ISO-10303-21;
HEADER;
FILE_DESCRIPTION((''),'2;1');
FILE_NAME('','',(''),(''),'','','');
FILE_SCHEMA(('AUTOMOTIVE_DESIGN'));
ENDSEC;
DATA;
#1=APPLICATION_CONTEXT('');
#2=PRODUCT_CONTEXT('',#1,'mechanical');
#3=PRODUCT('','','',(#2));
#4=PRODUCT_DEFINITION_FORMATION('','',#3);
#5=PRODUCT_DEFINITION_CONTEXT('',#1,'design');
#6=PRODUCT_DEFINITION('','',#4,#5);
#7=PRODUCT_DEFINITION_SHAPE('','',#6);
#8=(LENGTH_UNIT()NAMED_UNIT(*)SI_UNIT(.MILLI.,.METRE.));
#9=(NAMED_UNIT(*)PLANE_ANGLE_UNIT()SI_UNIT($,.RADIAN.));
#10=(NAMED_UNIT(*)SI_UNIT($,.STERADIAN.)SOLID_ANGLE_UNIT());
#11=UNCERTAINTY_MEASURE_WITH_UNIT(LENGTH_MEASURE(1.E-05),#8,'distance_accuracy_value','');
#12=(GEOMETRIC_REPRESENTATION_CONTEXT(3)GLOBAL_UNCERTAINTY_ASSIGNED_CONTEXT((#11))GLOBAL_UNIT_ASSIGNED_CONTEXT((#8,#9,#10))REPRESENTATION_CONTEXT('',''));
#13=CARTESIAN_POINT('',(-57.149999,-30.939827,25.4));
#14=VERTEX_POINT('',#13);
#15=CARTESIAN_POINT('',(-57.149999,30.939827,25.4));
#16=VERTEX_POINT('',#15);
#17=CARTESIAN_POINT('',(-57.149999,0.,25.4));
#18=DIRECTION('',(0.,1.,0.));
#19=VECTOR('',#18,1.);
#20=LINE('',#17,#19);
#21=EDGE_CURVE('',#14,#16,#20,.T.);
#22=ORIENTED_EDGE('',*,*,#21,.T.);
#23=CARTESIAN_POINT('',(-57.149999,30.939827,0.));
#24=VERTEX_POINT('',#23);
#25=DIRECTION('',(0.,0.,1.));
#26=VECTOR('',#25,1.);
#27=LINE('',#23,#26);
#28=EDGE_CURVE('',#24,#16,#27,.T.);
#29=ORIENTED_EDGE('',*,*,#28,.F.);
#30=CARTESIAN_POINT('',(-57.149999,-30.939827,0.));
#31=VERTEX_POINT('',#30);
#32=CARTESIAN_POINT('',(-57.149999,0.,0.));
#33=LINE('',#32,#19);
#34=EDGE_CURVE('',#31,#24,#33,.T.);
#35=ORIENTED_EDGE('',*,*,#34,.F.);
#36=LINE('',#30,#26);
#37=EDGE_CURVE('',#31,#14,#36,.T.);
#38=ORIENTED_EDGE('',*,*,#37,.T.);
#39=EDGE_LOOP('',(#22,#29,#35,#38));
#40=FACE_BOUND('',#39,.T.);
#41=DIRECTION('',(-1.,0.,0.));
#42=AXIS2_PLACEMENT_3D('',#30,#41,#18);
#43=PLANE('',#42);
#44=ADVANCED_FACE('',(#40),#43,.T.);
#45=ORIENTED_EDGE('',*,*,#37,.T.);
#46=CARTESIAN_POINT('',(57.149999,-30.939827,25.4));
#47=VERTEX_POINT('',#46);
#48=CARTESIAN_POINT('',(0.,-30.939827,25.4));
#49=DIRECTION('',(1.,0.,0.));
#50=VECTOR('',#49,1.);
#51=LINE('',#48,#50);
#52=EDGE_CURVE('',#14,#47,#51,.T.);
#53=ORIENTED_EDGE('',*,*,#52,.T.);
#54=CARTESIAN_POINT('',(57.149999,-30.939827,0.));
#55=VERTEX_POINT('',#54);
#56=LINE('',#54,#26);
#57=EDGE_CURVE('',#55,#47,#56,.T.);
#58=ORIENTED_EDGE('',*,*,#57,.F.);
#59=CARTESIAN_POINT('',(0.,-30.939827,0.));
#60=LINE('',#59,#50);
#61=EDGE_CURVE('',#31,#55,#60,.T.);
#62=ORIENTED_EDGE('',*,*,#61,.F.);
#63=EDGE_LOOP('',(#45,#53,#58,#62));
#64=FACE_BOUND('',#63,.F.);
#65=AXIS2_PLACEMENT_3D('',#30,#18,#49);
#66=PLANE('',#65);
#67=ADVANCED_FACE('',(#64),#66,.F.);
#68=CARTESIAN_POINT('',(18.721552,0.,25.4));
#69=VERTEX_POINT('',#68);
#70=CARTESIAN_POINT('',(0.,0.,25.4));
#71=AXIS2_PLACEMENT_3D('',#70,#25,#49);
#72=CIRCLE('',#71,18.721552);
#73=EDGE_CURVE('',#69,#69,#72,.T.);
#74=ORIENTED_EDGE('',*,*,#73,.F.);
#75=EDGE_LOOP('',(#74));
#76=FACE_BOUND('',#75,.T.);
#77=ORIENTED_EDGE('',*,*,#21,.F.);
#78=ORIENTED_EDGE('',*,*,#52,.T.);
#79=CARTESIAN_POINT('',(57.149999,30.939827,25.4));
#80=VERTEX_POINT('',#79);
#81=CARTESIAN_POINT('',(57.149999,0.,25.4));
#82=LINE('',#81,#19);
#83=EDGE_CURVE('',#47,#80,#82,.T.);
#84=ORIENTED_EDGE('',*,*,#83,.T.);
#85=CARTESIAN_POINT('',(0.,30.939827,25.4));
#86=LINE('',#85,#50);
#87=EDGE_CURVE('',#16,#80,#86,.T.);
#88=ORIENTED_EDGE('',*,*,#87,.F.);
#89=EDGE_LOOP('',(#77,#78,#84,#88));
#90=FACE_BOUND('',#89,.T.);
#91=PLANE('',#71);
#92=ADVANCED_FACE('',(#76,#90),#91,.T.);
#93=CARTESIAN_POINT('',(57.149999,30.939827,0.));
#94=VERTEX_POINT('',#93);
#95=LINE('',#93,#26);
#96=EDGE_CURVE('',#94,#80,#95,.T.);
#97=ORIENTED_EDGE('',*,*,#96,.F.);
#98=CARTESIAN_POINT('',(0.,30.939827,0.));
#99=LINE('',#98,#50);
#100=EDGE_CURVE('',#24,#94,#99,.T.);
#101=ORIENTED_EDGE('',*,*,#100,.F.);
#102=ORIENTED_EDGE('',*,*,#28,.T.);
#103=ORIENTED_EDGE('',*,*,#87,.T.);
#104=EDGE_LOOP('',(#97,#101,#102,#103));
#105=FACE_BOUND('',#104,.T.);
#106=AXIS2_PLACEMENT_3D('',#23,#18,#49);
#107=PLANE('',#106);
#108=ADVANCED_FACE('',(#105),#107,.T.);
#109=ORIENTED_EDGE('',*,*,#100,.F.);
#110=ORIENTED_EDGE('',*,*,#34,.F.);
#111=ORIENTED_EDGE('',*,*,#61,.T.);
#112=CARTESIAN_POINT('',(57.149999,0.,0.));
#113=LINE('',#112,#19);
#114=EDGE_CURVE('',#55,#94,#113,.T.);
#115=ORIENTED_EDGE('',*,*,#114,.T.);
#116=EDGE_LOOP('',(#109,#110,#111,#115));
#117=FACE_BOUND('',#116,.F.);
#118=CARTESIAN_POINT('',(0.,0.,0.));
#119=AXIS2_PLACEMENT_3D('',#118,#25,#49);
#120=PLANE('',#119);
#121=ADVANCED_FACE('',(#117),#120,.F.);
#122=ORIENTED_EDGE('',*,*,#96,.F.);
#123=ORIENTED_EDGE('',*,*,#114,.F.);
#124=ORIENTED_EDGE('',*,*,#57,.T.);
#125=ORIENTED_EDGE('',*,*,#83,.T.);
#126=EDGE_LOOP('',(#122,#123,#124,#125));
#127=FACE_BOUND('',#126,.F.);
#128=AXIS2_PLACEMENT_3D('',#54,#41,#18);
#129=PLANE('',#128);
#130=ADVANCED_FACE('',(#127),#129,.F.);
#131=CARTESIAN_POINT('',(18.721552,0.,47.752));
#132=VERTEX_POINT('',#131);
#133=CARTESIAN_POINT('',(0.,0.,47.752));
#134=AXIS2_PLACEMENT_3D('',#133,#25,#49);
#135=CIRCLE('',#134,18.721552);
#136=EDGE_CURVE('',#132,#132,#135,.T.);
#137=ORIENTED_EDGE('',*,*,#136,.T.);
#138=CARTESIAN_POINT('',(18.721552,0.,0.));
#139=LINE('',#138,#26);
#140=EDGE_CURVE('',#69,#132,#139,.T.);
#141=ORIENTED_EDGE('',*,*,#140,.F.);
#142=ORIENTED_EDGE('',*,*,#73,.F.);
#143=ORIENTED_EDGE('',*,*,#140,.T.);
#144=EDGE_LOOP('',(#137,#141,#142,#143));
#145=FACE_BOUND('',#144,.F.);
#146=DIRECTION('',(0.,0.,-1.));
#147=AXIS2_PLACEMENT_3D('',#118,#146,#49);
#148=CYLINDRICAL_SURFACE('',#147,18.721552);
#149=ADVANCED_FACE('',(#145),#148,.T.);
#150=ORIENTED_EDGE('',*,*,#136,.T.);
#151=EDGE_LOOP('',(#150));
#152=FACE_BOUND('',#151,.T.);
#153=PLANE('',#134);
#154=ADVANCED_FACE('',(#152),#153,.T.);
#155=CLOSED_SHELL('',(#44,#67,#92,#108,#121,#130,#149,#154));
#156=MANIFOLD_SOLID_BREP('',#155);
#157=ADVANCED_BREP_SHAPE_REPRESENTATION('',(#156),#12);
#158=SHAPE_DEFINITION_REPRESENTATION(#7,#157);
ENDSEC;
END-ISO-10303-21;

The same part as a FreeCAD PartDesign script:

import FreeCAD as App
import Part
import Sketcher
from FreeCAD import Vector
Q = App.Units.Quantity


def add_polygon(sketch, points):
    """Adds a closed chain of lines whose ends are joined by coincident constraints."""
    first, n = sketch.GeometryCount, len(points)
    for a, b in zip(points, points[1:] + points[:1]):
        sketch.addGeometry(Part.LineSegment(App.Vector(*a, 0), App.Vector(*b, 0)), False)
    for i in range(n):
        sketch.addConstraint(Sketcher.Constraint("Coincident", first + i, 2, first + (i + 1) % n, 1))

doc = App.newDocument("Part")
body = doc.addObject("PartDesign::Body", "Body")

sketch1 = body.newObject("Sketcher::SketchObject", "Sketch")
sketch1.AttachmentSupport = (doc.getObject("XY_Plane"), [""])
sketch1.MapMode = "FlatFace"
add_polygon(sketch1, [(-57.149999, 30.939827), (-57.149999, -30.939827), (57.149999, -30.939827), (57.149999, 30.939827)])
sketch1.addGeometry(Part.Circle(Vector(0, 0, 0), Vector(0, 0, 1), 18.721552), False)
sketch1.addConstraint([
    Sketcher.Constraint("Vertical", 0),
    Sketcher.Constraint("Horizontal", 1),
    Sketcher.Constraint("Vertical", 2),
    Sketcher.Constraint("Horizontal", 3),
    Sketcher.Constraint("Coincident", 4, 3, -1, 1),
    Sketcher.Constraint("Symmetric", 0, 2, 2, 2, -1, 1),
    Sketcher.Constraint("DistanceX", 1, 1, 1, 2, Q("4.4999999 in")),
    Sketcher.Constraint("Diameter", 4, Q("37.443104 mm")),
    Sketcher.Constraint("DistanceY", 0, 2, 0, 1, Q("61.879654 mm")),
])
pad1 = body.newObject("PartDesign::Pad", "Pad")
pad1.Profile = sketch1
pad1.Length = Q("1 in")

sketch2 = body.newObject("Sketcher::SketchObject", "Sketch001")
sketch2.AttachmentSupport = (doc.getObject("XY_Plane"), [""])
sketch2.MapMode = "FlatFace"
sketch2.addGeometry(Part.Circle(Vector(0, 0, 0), Vector(0, 0, 1), 18.721552), False)
sketch2.addConstraint([
    Sketcher.Constraint("Coincident", 0, 3, -1, 1),
    Sketcher.Constraint("Diameter", 0, Q("37.443104 mm")),
])
pad2 = body.newObject("PartDesign::Pad", "Pad001")
pad2.Profile = sketch2
pad2.Length = Q("1.88 in")

doc.recompute()
